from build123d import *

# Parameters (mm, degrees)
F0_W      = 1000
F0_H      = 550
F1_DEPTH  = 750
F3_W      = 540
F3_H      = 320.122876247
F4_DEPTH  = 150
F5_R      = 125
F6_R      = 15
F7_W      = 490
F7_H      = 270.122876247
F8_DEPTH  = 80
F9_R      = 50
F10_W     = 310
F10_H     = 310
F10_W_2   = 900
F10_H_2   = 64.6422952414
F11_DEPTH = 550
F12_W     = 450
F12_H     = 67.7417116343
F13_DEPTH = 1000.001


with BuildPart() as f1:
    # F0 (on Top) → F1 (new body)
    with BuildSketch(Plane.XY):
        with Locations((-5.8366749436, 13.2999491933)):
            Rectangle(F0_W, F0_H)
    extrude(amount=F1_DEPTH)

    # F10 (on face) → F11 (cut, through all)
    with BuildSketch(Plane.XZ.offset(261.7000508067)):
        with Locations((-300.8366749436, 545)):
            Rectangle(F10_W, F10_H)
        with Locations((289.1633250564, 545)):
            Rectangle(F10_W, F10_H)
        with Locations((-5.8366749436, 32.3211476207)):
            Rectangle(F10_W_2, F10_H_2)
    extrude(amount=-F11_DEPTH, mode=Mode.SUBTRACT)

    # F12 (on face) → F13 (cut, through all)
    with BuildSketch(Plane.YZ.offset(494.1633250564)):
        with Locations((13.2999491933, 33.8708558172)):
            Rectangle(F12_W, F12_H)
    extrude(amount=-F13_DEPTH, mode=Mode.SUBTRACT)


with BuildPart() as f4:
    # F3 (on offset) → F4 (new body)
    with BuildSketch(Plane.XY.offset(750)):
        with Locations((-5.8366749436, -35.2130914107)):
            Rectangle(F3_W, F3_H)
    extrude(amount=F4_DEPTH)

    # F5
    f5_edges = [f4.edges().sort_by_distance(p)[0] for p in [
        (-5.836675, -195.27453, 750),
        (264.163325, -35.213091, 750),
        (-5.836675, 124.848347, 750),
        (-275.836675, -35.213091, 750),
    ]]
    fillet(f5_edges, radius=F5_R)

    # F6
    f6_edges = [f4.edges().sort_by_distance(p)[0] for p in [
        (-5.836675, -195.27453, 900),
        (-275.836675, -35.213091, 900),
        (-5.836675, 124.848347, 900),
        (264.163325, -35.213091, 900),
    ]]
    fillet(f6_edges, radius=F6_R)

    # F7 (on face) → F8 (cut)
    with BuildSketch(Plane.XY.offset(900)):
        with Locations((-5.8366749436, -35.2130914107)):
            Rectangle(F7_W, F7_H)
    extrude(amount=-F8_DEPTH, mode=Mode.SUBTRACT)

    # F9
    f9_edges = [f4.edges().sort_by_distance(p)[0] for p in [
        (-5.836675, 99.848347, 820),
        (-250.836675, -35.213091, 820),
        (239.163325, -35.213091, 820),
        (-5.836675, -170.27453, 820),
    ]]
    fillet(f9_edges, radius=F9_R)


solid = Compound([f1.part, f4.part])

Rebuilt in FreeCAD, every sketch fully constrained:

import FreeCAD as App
import Part
import Sketcher

V = App.Vector


def edges_at(feature, points):
    """Names of the edges that pass closest to the given points."""
    edges = feature.Shape.Edges
    near = lambda p: min(range(len(edges)), key=lambda i: edges[i].distToShape(Part.Vertex(*p))[0])
    return sorted({f"Edge{near(p) + 1}" for p in points})


def add_polygon(sketch, points):
    """Adds a closed chain of lines whose ends are joined by coincident constraints."""
    first, n = sketch.GeometryCount, len(points)
    for a, b in zip(points, points[1:] + points[:1]):
        sketch.addGeometry(Part.LineSegment(App.Vector(*a, 0), App.Vector(*b, 0)), False)
    for i in range(n):
        sketch.addConstraint(Sketcher.Constraint("Coincident", first + i, 2, first + (i + 1) % n, 1))

doc = App.newDocument("Part")
body = doc.addObject("PartDesign::Body", "Body")

# Sketch on XY plane
sketch1 = doc.addObject("Sketcher::SketchObject", "Sketch")
body.addObject(sketch1)
sketch1.AttachmentSupport = (doc.XY_Plane, [""])
sketch1.MapMode = "FlatFace"
add_polygon(sketch1, [(-505.836675, 288.299949), (-505.836675, -261.700051), (494.163325, -261.700051), (494.163325, 288.299949)])  # lines 0-3
sketch1.addConstraint([
    Sketcher.Constraint("Vertical", 0),
    Sketcher.Constraint("Horizontal", 1),
    Sketcher.Constraint("Vertical", 2),
    Sketcher.Constraint("Horizontal", 3),
    Sketcher.Constraint("DistanceX", 1, 1, 1, 2, 1000.0),
    Sketcher.Constraint("DistanceY", 0, 2, 0, 1, 550.0),
    Sketcher.Constraint("DistanceY", 0, 2, -1, 1, 261.700051),
    Sketcher.Constraint("DistanceX", 0, 2, -1, 1, 505.836675),
])
pad1 = doc.addObject("PartDesign::Pad", "Pad")
body.addObject(pad1)
pad1.Profile = sketch1
pad1.Length = 750

# Sketch on XZ plane
sketch2 = doc.addObject("Sketcher::SketchObject", "Sketch001")
body.addObject(sketch2)
sketch2.AttachmentSupport = (doc.XZ_Plane, [""])
sketch2.MapMode = "FlatFace"
sketch2.AttachmentOffset = App.Placement(V(0, 0, 261.700051), App.Rotation())
add_polygon(sketch2, [(-455.836675, 700), (-455.836675, 390), (-145.836675, 390), (-145.836675, 700)])  # lines 0-3
add_polygon(sketch2, [(134.163325, 700), (134.163325, 390), (444.163325, 390), (444.163325, 700)])  # lines 4-7
add_polygon(sketch2, [(-455.836675, 64.642295), (-455.836675, 0), (444.163325, 0), (444.163325, 64.642295)])  # lines 8-11
sketch2.addConstraint([
    Sketcher.Constraint("Vertical", 0),
    Sketcher.Constraint("Horizontal", 1),
    Sketcher.Constraint("Vertical", 2),
    Sketcher.Constraint("Horizontal", 3),
    Sketcher.Constraint("Vertical", 4),
    Sketcher.Constraint("Horizontal", 5),
    Sketcher.Constraint("Vertical", 6),
    Sketcher.Constraint("Horizontal", 7),
    Sketcher.Constraint("Vertical", 8),
    Sketcher.Constraint("Horizontal", 9),
    Sketcher.Constraint("Vertical", 10),
    Sketcher.Constraint("Horizontal", 11),
    Sketcher.Constraint("PointOnObject", 8, 2, -1),
    Sketcher.Constraint("Horizontal", 1, 2, 4, 2),
    Sketcher.Constraint("Horizontal", 3, 2, 6, 2),
    Sketcher.Constraint("Vertical", 3, 2, 8, 2),
    Sketcher.Constraint("Vertical", 6, 2, 9, 2),
    Sketcher.Constraint("Equal", 3, 5),
    Sketcher.Constraint("Equal", 7, 0),
    Sketcher.Constraint("DistanceX", 1, 1, 1, 2, 310.0),
    Sketcher.Constraint("DistanceX", 9, 1, 9, 2, 900.0),
    Sketcher.Constraint("DistanceY", -1, 1, 0, 2, 390.0),
    Sketcher.Constraint("DistanceY", 8, 2, 8, 1, 64.642295),
    Sketcher.Constraint("DistanceX", 0, 2, -1, 1, 455.836675),
])
pocket1 = doc.addObject("PartDesign::Pocket", "Pocket")
body.addObject(pocket1)
pocket1.Profile = sketch2
pocket1.Type = "ThroughAll"

# Sketch on YZ plane
sketch3 = doc.addObject("Sketcher::SketchObject", "Sketch002")
body.addObject(sketch3)
sketch3.AttachmentSupport = (doc.YZ_Plane, [""])
sketch3.MapMode = "FlatFace"
sketch3.AttachmentOffset = App.Placement(V(0, 0, 494.163325), App.Rotation())
add_polygon(sketch3, [(-211.700051, 67.741712), (-211.700051, 0), (238.299949, 0), (238.299949, 67.741712)])  # lines 0-3
sketch3.addConstraint([
    Sketcher.Constraint("Vertical", 0),
    Sketcher.Constraint("Horizontal", 1),
    Sketcher.Constraint("Vertical", 2),
    Sketcher.Constraint("Horizontal", 3),
    Sketcher.Constraint("PointOnObject", 0, 2, -1),
    Sketcher.Constraint("DistanceX", 1, 1, 1, 2, 450.0),
    Sketcher.Constraint("DistanceY", 0, 2, 0, 1, 67.741712),
    Sketcher.Constraint("DistanceX", 0, 2, -1, 1, 211.700051),
])
pocket2 = doc.addObject("PartDesign::Pocket", "Pocket001")
body.addObject(pocket2)
pocket2.Profile = sketch3
pocket2.Type = "ThroughAll"
body2 = doc.addObject("PartDesign::Body", "Body001")

# Sketch on XY plane
sketch4 = doc.addObject("Sketcher::SketchObject", "Sketch003")
body2.addObject(sketch4)
sketch4.AttachmentSupport = (doc.getObject("XY_Plane001"), [""])
sketch4.MapMode = "FlatFace"
sketch4.AttachmentOffset = App.Placement(V(0, 0, 750), App.Rotation())
add_polygon(sketch4, [(-275.836675, 124.848347), (-275.836675, -195.27453), (264.163325, -195.27453), (264.163325, 124.848347)])  # lines 0-3
sketch4.addConstraint([
    Sketcher.Constraint("Vertical", 0),
    Sketcher.Constraint("Horizontal", 1),
    Sketcher.Constraint("Vertical", 2),
    Sketcher.Constraint("Horizontal", 3),
    Sketcher.Constraint("DistanceX", 1, 1, 1, 2, 540.0),
    Sketcher.Constraint("DistanceY", 0, 2, 0, 1, 320.122876),
    Sketcher.Constraint("DistanceY", 0, 2, -1, 1, 195.27453),
    Sketcher.Constraint("DistanceX", 0, 2, -1, 1, 275.836675),
])
pad2 = doc.addObject("PartDesign::Pad", "Pad001")
body2.addObject(pad2)
pad2.Profile = sketch4
pad2.Length = 150
doc.recompute()

fillet = doc.addObject("PartDesign::Fillet", "Fillet")
body2.addObject(fillet)
fillet.Base = (pad2, edges_at(pad2, [
    (-5.837, -195.275, 750),
    (264.163, -35.213, 750),
    (-5.837, 124.848, 750),
    (-275.837, -35.213, 750),
]))
fillet.Radius = 125
doc.recompute()

fillet2 = doc.addObject("PartDesign::Fillet", "Fillet001")
body2.addObject(fillet2)
fillet2.Base = (fillet, edges_at(fillet, [
    (-5.837, -195.275, 900),
    (-275.837, -35.213, 900),
    (-5.837, 124.848, 900),
    (264.163, -35.213, 900),
]))
fillet2.Radius = 15

# Sketch on XY plane
sketch5 = doc.addObject("Sketcher::SketchObject", "Sketch004")
body2.addObject(sketch5)
sketch5.AttachmentSupport = (doc.getObject("XY_Plane001"), [""])
sketch5.MapMode = "FlatFace"
sketch5.AttachmentOffset = App.Placement(V(0, 0, 900), App.Rotation())
add_polygon(sketch5, [(-250.836675, 99.848347), (-250.836675, -170.27453), (239.163325, -170.27453), (239.163325, 99.848347)])  # lines 0-3
sketch5.addConstraint([
    Sketcher.Constraint("Vertical", 0),
    Sketcher.Constraint("Horizontal", 1),
    Sketcher.Constraint("Vertical", 2),
    Sketcher.Constraint("Horizontal", 3),
    Sketcher.Constraint("DistanceX", 1, 1, 1, 2, 490.0),
    Sketcher.Constraint("DistanceY", 0, 2, 0, 1, 270.122876),
    Sketcher.Constraint("DistanceY", 0, 2, -1, 1, 170.27453),
    Sketcher.Constraint("DistanceX", 0, 2, -1, 1, 250.836675),
])
pocket3 = doc.addObject("PartDesign::Pocket", "Pocket002")
body2.addObject(pocket3)
pocket3.Profile = sketch5
pocket3.Length = 80
doc.recompute()

fillet3 = doc.addObject("PartDesign::Fillet", "Fillet002")
body2.addObject(fillet3)
fillet3.Base = (pocket3, edges_at(pocket3, [
    (-5.837, 99.848, 820),
    (-250.837, -35.213, 820),
    (239.163, -35.213, 820),
    (-5.837, -170.275, 820),
]))
fillet3.Radius = 50

doc.recompute()
